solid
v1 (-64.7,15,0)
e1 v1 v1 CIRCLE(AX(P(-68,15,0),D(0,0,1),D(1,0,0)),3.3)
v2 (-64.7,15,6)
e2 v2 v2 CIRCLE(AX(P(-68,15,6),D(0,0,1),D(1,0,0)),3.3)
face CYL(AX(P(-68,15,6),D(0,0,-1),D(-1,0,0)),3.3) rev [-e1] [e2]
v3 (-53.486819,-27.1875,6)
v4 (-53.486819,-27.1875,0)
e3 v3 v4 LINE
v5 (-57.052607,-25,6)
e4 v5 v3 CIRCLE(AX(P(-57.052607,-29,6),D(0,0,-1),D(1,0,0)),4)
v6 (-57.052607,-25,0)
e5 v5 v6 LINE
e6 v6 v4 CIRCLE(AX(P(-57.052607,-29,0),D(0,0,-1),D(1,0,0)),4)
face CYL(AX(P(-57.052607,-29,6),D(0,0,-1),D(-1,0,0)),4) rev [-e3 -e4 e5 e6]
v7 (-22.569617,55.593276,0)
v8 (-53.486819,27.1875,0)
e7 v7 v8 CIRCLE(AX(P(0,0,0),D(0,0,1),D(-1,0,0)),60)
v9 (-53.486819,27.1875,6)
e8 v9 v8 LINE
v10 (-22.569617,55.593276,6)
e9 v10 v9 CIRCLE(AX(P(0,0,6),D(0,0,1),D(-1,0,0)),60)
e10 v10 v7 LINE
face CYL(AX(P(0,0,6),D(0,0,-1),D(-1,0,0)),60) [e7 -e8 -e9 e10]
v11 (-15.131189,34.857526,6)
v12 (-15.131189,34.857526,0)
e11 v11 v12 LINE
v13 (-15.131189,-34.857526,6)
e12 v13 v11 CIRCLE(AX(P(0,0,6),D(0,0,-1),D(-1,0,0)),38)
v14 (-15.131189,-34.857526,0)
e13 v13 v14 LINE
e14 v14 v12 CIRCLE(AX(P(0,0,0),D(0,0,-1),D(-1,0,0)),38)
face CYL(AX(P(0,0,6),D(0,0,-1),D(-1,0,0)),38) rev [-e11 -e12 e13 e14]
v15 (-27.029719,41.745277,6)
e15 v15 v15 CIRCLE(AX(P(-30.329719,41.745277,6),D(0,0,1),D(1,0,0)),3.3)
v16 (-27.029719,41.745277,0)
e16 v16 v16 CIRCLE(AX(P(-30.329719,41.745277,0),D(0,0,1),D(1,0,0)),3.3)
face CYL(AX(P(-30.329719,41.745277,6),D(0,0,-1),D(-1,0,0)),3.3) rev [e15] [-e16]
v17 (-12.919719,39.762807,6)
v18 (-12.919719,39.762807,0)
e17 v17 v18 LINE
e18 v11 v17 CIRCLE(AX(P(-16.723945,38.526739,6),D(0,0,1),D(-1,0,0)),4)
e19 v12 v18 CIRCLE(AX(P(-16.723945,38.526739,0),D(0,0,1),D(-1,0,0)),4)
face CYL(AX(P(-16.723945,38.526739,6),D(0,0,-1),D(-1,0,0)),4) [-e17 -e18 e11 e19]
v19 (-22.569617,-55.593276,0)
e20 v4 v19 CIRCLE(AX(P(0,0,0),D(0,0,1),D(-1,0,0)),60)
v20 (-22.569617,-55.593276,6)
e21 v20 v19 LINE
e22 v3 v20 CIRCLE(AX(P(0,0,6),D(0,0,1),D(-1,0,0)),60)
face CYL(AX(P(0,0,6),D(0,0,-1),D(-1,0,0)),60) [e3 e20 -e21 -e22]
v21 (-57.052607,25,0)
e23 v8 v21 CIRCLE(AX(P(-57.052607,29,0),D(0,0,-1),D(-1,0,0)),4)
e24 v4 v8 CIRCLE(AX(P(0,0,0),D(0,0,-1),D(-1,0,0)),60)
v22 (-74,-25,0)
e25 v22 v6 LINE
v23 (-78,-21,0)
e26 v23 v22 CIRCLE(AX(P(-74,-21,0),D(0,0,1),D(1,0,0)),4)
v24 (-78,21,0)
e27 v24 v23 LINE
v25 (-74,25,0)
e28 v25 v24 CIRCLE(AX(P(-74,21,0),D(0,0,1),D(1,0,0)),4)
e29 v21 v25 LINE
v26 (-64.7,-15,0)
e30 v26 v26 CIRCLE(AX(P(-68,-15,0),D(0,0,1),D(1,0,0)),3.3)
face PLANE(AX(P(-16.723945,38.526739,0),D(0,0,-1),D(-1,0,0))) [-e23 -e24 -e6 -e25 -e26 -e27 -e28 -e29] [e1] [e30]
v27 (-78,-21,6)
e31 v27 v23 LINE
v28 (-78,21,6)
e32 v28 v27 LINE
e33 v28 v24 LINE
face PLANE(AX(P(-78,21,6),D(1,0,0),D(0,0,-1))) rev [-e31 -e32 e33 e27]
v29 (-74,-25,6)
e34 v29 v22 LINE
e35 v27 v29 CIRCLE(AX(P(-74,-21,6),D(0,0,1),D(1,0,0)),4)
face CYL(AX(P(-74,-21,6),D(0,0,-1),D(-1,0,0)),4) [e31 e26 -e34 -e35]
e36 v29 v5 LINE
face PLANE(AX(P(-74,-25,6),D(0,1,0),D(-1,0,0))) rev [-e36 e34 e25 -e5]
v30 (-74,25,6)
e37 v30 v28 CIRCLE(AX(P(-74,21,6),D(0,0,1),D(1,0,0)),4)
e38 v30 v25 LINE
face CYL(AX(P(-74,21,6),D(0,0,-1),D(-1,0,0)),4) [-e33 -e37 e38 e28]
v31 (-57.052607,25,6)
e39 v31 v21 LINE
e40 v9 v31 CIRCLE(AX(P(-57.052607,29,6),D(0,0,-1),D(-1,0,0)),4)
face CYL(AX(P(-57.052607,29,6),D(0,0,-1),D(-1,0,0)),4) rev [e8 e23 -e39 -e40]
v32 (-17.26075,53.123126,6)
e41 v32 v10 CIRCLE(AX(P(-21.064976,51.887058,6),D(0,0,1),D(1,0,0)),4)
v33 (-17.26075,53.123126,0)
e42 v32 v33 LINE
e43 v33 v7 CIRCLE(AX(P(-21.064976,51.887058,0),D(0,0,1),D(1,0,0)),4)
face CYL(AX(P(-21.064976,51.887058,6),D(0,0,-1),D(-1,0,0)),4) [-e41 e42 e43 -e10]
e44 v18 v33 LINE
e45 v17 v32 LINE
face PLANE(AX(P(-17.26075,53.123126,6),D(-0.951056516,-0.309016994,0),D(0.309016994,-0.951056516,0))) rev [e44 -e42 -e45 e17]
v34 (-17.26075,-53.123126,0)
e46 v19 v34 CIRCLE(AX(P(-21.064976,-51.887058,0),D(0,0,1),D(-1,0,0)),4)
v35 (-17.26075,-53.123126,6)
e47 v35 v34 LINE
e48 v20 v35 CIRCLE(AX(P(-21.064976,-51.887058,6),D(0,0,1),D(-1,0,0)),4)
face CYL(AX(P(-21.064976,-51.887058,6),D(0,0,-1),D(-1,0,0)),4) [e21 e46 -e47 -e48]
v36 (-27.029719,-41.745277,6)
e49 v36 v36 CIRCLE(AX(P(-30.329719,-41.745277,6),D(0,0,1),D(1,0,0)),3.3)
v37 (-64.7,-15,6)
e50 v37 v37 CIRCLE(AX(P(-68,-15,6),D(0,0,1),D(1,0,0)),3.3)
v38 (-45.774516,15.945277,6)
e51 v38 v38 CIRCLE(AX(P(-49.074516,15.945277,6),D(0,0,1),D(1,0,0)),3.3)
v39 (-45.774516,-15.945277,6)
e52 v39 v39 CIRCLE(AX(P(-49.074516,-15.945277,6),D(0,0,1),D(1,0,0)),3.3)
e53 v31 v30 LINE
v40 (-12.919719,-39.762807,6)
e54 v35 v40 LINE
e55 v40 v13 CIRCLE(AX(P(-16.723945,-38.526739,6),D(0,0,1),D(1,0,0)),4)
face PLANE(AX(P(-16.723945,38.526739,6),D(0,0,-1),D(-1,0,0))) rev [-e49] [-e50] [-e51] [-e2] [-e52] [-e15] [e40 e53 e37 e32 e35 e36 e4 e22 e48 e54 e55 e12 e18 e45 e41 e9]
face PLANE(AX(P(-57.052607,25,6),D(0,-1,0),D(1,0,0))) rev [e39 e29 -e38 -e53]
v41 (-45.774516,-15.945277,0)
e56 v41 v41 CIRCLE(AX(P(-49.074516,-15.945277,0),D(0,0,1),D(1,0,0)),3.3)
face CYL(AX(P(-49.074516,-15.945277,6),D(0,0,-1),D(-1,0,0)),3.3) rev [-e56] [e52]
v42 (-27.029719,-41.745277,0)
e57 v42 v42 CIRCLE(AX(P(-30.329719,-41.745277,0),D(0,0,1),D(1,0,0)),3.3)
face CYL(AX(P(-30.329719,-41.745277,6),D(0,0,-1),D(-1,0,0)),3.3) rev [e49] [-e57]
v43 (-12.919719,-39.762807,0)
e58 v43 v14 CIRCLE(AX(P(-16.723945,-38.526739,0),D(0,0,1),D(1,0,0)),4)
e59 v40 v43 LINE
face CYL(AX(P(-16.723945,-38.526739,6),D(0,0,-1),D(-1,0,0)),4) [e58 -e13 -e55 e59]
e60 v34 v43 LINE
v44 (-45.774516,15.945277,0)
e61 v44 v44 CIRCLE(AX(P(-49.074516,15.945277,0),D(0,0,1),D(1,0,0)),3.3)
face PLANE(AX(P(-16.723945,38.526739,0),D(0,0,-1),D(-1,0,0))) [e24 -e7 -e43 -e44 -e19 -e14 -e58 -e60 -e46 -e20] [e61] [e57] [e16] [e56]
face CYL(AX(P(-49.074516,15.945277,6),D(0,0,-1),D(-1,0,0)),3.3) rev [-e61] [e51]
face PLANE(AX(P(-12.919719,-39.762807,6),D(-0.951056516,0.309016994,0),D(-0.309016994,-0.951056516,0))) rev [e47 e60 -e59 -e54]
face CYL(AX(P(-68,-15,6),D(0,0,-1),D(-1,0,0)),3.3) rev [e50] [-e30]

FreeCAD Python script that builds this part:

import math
import FreeCAD as App
import Part
import Sketcher
Q = App.Units.Quantity

doc = App.newDocument("Part")
body = doc.addObject("PartDesign::Body", "Body")

# Sketch on XY plane
sketch1 = body.newObject("Sketcher::SketchObject", "Sketch")
sketch1.AttachmentSupport = (doc.getObject("XY_Plane"), [""])
sketch1.MapMode = "FlatFace"
sketch1.addGeometry([
    Part.LineSegment(App.Vector(-12.9, 39.8, 0), App.Vector(-17.3, 53.1, 0)),  # 0
    Part.ArcOfCircle(Part.Circle(App.Vector(-21.1, 51.9, 0), App.Vector(0, 0, 1), 4), math.radians(18), math.radians(112)),  # 1
    Part.ArcOfCircle(Part.Circle(App.Vector(0, 0, 0), App.Vector(0, 0, 1), 60), math.radians(112), math.radians(153)),  # 2
    Part.ArcOfCircle(Part.Circle(App.Vector(-57.1, 29, 0), App.Vector(0, 0, 1), 4), math.radians(-90), math.radians(-27)),  # 3
    Part.LineSegment(App.Vector(-57.1, 25, 0), App.Vector(-74, 25, 0)),  # 4
    Part.ArcOfCircle(Part.Circle(App.Vector(-74, 21, 0), App.Vector(0, 0, 1), 4), math.radians(90), math.radians(180)),  # 5
    Part.LineSegment(App.Vector(-78, 21, 0), App.Vector(-78, -21, 0)),  # 6
    Part.ArcOfCircle(Part.Circle(App.Vector(-74, -21, 0), App.Vector(0, 0, 1), 4), math.radians(180), math.radians(270)),  # 7
    Part.LineSegment(App.Vector(-74, -25, 0), App.Vector(-57.1, -25, 0)),  # 8
    Part.ArcOfCircle(Part.Circle(App.Vector(-57.1, -29, 0), App.Vector(0, 0, 1), 4), math.radians(27), math.radians(90)),  # 9
    Part.ArcOfCircle(Part.Circle(App.Vector(0, 0, 0), App.Vector(0, 0, 1), 60), math.radians(-153), math.radians(-112)),  # 10
    Part.ArcOfCircle(Part.Circle(App.Vector(-21.1, -51.9, 0), App.Vector(0, 0, 1), 4), math.radians(-112), math.radians(-18)),  # 11
    Part.LineSegment(App.Vector(-17.3, -53.1, 0), App.Vector(-12.9, -39.8, 0)),  # 12
    Part.ArcOfCircle(Part.Circle(App.Vector(-16.7, -38.5, 0), App.Vector(0, 0, 1), 4), math.radians(-18), math.radians(67)),  # 13
    Part.ArcOfCircle(Part.Circle(App.Vector(0, 0, 0), App.Vector(0, 0, 1), 38), math.radians(113), math.radians(247)),  # 14
    Part.ArcOfCircle(Part.Circle(App.Vector(-16.7, 38.5, 0), App.Vector(0, 0, 1), 4), math.radians(-67), math.radians(18)),  # 15
    Part.Circle(App.Vector(-30.3, -41.7, 0), App.Vector(0, 0, 1), 3.3),  # 16
    Part.Circle(App.Vector(-49.1, -15.9, 0), App.Vector(0, 0, 1), 3.3),  # 17
    Part.Circle(App.Vector(-68, -15, 0), App.Vector(0, 0, 1), 3.3),  # 18
    Part.Circle(App.Vector(-49.1, 15.9, 0), App.Vector(0, 0, 1), 3.3),  # 19
    Part.Circle(App.Vector(-30.3, 41.7, 0), App.Vector(0, 0, 1), 3.3),  # 20
    Part.Circle(App.Vector(-68, 15, 0), App.Vector(0, 0, 1), 3.3),  # 21
], False)
sketch1.addConstraint([
    Sketcher.Constraint("Tangent", 0, 2, 1, 1),
    Sketcher.Constraint("Tangent", 1, 2, 2, 1),
    Sketcher.Constraint("Tangent", 2, 2, 3, 2),
    Sketcher.Constraint("Tangent", 3, 1, 4, 1),
    Sketcher.Constraint("Tangent", 4, 2, 5, 1),
    Sketcher.Constraint("Tangent", 5, 2, 6, 1),
    Sketcher.Constraint("Tangent", 6, 2, 7, 1),
    Sketcher.Constraint("Tangent", 7, 2, 8, 1),
    Sketcher.Constraint("Tangent", 8, 2, 9, 2),
    Sketcher.Constraint("Tangent", 9, 1, 10, 1),
    Sketcher.Constraint("Tangent", 10, 2, 11, 1),
    Sketcher.Constraint("Tangent", 11, 2, 12, 1),
    Sketcher.Constraint("Tangent", 12, 2, 13, 1),
    Sketcher.Constraint("Tangent", 13, 2, 14, 2),
    Sketcher.Constraint("Tangent", 14, 1, 15, 1),
    Sketcher.Constraint("Tangent", 15, 2, 0, 1),
    Sketcher.Constraint("Horizontal", 4),
    Sketcher.Constraint("Vertical", 6),
    Sketcher.Constraint("Horizontal", 8),
    Sketcher.Constraint("Coincident", 2, 3, -1, 1),
    Sketcher.Constraint("Coincident", 10, 3, -1, 1),
    Sketcher.Constraint("Coincident", 14, 3, -1, 1),
    Sketcher.Constraint("Equal", 1, 3),
    Sketcher.Constraint("Equal", 3, 5),
    Sketcher.Constraint("Equal", 5, 7),
    Sketcher.Constraint("Equal", 7, 9),
    Sketcher.Constraint("Equal", 2, 10),
    Sketcher.Constraint("Equal", 9, 11),
    Sketcher.Constraint("Equal", 11, 13),
    Sketcher.Constraint("Equal", 13, 15),
    Sketcher.Constraint("Equal", 16, 17),
    Sketcher.Constraint("Equal", 17, 18),
    Sketcher.Constraint("Equal", 18, 19),
    Sketcher.Constraint("Equal", 19, 20),
    Sketcher.Constraint("Equal", 20, 21),
    Sketcher.Constraint("Symmetric", 17, 3, 19, 3, -1),
    Sketcher.Constraint("Symmetric", 16, 3, 20, 3, -1),
    Sketcher.Constraint("Symmetric", 18, 3, 21, 3, -1),
    Sketcher.Constraint("Symmetric", 0, 2, 11, 2, -1),
    Sketcher.Constraint("Vertical", 3, 3, 9, 3),
    Sketcher.Constraint("Radius", 1, Q("4 mm")),
    Sketcher.Constraint("Radius", 2, Q("60 mm")),
    Sketcher.Constraint("Radius", 14, Q("38 mm")),
    Sketcher.Constraint("Diameter", 16, Q("6.6 mm")),
    Sketcher.Constraint("DistanceY", 6, 2, 6, 1, Q("42 mm")),
    Sketcher.Constraint("Angle", 0, Q("108 deg")),
    Sketcher.Constraint("DistanceX", 5, 3, -1, 1, Q("74 mm")),
    Sketcher.Constraint("DistanceX", 18, 3, -1, 1, Q("68 mm")),
    Sketcher.Constraint("DistanceY", 18, 3, -1, 1, Q("15 mm")),
    Sketcher.Constraint("DistanceY", 16, 3, 17, 3, Q("25.8 mm")),
    Sketcher.Constraint("DistanceX", 16, 3, 12, 2, Q("17.41 mm")),
    Sketcher.Constraint("DistanceY", 20, 3, 1, 2, Q("13.847999 mm")),
    Sketcher.Constraint("DistanceX", 20, 3, 1, 2, Q("7.760102 mm")),
    Sketcher.Constraint("DistanceX", 9, 3, 17, 3, Q("7.978091 mm")),
])
pad1 = body.newObject("PartDesign::Pad", "Pad")
pad1.Profile = sketch1
pad1.Length = 6

doc.recompute()
